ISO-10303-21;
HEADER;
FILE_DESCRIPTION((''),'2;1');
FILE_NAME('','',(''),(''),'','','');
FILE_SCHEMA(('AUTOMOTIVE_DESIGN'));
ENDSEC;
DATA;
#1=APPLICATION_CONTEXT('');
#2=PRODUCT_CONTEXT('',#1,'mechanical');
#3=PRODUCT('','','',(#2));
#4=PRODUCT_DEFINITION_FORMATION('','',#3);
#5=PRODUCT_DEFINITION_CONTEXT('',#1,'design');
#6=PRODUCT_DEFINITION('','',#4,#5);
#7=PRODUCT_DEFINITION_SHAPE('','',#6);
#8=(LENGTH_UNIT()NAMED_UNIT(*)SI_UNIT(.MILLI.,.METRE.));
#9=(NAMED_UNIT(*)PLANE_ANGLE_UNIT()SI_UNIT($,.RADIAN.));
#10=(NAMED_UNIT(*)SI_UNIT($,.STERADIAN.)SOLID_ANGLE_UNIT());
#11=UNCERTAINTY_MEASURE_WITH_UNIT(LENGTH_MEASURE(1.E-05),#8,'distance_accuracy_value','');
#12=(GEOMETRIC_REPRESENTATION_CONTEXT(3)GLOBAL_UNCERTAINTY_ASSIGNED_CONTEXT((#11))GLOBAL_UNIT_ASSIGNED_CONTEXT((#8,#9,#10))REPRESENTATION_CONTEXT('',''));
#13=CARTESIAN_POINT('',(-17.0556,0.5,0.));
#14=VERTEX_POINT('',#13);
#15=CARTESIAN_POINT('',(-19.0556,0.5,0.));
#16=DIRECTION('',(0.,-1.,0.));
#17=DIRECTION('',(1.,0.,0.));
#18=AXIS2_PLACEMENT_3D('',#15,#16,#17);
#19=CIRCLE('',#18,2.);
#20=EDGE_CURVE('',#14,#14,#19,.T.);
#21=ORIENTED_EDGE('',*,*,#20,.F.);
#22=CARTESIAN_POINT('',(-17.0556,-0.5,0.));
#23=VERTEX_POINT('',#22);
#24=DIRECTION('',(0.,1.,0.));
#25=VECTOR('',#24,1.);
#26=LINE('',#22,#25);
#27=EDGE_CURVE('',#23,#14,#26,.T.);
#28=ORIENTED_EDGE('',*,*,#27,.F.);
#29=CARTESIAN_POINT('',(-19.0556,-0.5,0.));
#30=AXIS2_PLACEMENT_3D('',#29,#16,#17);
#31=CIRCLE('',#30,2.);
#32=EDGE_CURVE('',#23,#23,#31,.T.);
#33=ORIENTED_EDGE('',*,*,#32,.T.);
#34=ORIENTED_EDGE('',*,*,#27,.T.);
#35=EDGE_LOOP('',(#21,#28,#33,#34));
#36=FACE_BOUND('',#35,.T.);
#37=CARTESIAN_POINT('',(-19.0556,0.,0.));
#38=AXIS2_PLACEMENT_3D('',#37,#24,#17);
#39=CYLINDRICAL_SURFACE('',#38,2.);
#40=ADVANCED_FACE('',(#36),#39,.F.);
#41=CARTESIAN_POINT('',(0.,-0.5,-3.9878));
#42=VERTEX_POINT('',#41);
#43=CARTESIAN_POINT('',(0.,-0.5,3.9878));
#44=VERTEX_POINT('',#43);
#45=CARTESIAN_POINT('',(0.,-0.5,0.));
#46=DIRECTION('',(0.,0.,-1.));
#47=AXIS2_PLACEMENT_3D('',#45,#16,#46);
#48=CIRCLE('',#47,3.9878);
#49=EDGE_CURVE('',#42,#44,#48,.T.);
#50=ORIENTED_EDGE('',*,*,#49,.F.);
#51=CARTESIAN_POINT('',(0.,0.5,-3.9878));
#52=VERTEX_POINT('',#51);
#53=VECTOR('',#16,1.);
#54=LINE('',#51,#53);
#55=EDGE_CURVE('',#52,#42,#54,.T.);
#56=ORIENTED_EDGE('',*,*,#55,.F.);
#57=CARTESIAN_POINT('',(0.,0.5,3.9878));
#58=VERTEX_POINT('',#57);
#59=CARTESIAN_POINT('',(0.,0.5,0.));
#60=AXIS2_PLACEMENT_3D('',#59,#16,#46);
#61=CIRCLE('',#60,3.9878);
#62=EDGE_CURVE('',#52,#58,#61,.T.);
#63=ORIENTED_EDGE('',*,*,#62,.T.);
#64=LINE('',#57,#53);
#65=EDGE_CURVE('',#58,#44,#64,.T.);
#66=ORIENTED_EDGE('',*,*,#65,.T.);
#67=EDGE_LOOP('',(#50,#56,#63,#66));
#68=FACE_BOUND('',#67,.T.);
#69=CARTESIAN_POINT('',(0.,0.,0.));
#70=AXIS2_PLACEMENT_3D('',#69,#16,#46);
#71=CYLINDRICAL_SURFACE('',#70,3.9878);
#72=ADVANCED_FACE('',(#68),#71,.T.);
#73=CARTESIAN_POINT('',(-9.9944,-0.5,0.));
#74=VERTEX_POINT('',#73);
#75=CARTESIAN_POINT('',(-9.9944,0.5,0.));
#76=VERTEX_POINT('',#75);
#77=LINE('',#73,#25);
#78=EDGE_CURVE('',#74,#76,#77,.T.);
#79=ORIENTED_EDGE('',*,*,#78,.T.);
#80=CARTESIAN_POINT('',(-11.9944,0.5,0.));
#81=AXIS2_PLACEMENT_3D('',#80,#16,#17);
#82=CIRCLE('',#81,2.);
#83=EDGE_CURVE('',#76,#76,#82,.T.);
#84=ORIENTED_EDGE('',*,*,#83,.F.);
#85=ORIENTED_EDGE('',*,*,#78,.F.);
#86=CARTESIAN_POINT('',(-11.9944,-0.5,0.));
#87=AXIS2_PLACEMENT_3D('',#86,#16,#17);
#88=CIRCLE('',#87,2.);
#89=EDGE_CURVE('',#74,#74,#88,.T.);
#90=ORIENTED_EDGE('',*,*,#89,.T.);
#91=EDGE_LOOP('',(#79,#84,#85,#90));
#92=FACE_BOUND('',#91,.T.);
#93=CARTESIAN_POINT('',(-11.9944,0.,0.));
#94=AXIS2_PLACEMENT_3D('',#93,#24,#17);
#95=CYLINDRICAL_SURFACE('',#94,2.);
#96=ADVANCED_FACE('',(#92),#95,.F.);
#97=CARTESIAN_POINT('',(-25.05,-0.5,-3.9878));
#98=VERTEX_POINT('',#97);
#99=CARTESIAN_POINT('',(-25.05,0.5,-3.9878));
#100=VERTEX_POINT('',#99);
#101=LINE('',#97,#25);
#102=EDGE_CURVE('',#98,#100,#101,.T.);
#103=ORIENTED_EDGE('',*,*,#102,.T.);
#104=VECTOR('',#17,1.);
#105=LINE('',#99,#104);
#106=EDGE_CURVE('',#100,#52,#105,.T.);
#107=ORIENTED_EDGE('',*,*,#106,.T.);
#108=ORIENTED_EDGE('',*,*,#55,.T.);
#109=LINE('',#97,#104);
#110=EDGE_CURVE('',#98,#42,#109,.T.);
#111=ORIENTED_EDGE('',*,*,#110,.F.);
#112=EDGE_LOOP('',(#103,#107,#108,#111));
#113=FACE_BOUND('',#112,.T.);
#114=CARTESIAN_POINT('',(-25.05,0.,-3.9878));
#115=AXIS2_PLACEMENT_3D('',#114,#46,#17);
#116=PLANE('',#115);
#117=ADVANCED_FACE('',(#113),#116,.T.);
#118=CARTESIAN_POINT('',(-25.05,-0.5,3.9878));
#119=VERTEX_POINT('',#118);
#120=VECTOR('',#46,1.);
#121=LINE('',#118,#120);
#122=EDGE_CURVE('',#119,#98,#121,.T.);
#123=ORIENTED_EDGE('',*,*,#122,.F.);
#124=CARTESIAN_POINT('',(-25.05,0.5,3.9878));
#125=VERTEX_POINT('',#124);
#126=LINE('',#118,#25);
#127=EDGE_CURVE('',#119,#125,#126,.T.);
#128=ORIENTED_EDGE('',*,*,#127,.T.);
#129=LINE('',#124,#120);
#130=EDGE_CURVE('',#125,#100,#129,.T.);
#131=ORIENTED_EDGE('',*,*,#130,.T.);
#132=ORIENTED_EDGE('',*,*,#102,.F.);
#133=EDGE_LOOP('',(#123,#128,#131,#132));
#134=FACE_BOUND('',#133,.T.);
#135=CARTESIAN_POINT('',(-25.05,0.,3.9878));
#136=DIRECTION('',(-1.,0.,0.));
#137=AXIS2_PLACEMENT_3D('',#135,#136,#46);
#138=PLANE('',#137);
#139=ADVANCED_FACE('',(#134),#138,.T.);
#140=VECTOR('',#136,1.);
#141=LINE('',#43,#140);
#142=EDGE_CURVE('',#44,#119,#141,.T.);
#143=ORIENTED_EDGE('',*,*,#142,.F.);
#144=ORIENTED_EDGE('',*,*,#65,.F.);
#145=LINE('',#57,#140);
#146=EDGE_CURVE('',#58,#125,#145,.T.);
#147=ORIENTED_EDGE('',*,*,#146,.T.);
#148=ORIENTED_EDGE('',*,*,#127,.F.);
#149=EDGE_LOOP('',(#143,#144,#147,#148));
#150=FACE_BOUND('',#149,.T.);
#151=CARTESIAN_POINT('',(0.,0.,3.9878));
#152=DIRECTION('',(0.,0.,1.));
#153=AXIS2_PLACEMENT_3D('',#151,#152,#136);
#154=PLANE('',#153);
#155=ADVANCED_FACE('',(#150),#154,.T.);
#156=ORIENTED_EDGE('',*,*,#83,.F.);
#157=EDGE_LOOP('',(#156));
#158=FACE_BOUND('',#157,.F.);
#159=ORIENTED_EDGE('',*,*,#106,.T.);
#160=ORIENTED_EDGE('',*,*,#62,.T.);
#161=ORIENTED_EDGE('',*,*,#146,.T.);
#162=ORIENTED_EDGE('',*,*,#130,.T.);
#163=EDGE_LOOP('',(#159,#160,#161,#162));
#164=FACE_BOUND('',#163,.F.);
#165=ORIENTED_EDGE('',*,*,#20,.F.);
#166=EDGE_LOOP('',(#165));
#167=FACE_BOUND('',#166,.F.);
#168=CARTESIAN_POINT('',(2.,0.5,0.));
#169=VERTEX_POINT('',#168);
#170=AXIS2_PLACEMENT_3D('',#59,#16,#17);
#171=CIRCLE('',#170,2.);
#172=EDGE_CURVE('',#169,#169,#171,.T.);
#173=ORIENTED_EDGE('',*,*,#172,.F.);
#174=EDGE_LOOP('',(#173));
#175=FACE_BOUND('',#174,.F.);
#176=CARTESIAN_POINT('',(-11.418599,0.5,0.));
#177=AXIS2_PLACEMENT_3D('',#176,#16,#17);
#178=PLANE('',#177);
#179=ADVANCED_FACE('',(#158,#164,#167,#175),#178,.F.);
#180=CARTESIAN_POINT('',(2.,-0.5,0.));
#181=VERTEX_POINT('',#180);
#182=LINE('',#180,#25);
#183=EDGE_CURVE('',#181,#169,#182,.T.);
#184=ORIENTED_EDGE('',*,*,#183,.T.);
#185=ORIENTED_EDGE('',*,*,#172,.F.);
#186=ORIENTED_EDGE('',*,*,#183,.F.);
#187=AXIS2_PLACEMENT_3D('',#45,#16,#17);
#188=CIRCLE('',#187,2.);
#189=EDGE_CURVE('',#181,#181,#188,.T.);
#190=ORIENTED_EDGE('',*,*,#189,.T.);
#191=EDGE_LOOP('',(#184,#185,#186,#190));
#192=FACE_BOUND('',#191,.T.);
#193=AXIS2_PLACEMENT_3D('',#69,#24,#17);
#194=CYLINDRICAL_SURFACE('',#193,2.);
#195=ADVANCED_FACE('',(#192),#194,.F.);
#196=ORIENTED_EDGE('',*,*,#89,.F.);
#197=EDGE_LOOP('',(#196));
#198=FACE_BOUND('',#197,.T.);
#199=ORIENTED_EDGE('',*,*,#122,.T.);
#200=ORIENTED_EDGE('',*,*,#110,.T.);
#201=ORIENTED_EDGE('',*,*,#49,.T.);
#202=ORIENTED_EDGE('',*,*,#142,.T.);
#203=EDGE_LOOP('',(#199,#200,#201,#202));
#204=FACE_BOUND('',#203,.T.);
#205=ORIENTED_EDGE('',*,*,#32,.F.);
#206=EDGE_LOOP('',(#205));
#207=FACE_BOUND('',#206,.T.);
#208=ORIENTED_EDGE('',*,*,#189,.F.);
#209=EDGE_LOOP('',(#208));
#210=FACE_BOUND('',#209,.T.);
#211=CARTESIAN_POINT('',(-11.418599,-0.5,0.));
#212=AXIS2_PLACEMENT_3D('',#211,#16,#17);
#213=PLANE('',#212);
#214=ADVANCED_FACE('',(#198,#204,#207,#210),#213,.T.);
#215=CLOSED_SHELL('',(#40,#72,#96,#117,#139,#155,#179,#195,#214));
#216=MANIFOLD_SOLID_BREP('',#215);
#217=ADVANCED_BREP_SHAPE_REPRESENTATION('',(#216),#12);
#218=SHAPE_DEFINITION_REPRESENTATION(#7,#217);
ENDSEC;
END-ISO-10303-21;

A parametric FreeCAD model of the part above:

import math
import FreeCAD as App
import Part
import Sketcher

doc = App.newDocument("Part")
body = doc.addObject("PartDesign::Body", "Body")

# Sketch on XZ plane
sketch1 = body.newObject("Sketcher::SketchObject", "Sketch")
sketch1.AttachmentSupport = (doc.getObject("XZ_Plane"), [""])
sketch1.MapMode = "FlatFace"
sketch1.addGeometry([
    Part.LineSegment(App.Vector(-25.1, -4, 0), App.Vector(0, -4, 0)),  # 0
    Part.ArcOfCircle(Part.Circle(App.Vector(0, 0, 0), App.Vector(0, 0, 1), 4), math.radians(-90), math.radians(90)),  # 1
    Part.LineSegment(App.Vector(0, 4, 0), App.Vector(-25.1, 4, 0)),  # 2
    Part.LineSegment(App.Vector(-25.1, 4, 0), App.Vector(-25.1, -4, 0)),  # 3
    Part.Circle(App.Vector(-19.1, 0, 0), App.Vector(0, 0, 1), 2),  # 4
    Part.Circle(App.Vector(-12, 0, 0), App.Vector(0, 0, 1), 2),  # 5
    Part.Circle(App.Vector(0, 0, 0), App.Vector(0, 0, 1), 2),  # 6
], False)
sketch1.addConstraint([
    Sketcher.Constraint("Tangent", 0, 2, 1, 1),
    Sketcher.Constraint("Tangent", 1, 2, 2, 1),
    Sketcher.Constraint("Coincident", 2, 2, 3, 1),
    Sketcher.Constraint("Coincident", 3, 2, 0, 1),
    Sketcher.Constraint("Horizontal", 0),
    Sketcher.Constraint("Horizontal", 2),
    Sketcher.Constraint("Vertical", 3),
    Sketcher.Constraint("Coincident", 1, 3, -1, 1),
    Sketcher.Constraint("Coincident", 6, 3, -1, 1),
    Sketcher.Constraint("Equal", 4, 5),
    Sketcher.Constraint("Equal", 5, 6),
    Sketcher.Constraint("PointOnObject", 4, 3, -1),
    Sketcher.Constraint("PointOnObject", 5, 3, -1),
    Sketcher.Constraint("Diameter", 4, 4.0),
    Sketcher.Constraint("DistanceX", 0, 1, 0, 2, 25.05),
    Sketcher.Constraint("Radius", 1, 3.9878),
    Sketcher.Constraint("DistanceX", 4, 3, -1, 1, 19.0556),
    Sketcher.Constraint("DistanceX", 5, 3, -1, 1, 11.9944),
])
pad1 = body.newObject("PartDesign::Pad", "Pad")
pad1.Profile = sketch1
pad1.Length = 1
pad1.Midplane = True

doc.recompute()
